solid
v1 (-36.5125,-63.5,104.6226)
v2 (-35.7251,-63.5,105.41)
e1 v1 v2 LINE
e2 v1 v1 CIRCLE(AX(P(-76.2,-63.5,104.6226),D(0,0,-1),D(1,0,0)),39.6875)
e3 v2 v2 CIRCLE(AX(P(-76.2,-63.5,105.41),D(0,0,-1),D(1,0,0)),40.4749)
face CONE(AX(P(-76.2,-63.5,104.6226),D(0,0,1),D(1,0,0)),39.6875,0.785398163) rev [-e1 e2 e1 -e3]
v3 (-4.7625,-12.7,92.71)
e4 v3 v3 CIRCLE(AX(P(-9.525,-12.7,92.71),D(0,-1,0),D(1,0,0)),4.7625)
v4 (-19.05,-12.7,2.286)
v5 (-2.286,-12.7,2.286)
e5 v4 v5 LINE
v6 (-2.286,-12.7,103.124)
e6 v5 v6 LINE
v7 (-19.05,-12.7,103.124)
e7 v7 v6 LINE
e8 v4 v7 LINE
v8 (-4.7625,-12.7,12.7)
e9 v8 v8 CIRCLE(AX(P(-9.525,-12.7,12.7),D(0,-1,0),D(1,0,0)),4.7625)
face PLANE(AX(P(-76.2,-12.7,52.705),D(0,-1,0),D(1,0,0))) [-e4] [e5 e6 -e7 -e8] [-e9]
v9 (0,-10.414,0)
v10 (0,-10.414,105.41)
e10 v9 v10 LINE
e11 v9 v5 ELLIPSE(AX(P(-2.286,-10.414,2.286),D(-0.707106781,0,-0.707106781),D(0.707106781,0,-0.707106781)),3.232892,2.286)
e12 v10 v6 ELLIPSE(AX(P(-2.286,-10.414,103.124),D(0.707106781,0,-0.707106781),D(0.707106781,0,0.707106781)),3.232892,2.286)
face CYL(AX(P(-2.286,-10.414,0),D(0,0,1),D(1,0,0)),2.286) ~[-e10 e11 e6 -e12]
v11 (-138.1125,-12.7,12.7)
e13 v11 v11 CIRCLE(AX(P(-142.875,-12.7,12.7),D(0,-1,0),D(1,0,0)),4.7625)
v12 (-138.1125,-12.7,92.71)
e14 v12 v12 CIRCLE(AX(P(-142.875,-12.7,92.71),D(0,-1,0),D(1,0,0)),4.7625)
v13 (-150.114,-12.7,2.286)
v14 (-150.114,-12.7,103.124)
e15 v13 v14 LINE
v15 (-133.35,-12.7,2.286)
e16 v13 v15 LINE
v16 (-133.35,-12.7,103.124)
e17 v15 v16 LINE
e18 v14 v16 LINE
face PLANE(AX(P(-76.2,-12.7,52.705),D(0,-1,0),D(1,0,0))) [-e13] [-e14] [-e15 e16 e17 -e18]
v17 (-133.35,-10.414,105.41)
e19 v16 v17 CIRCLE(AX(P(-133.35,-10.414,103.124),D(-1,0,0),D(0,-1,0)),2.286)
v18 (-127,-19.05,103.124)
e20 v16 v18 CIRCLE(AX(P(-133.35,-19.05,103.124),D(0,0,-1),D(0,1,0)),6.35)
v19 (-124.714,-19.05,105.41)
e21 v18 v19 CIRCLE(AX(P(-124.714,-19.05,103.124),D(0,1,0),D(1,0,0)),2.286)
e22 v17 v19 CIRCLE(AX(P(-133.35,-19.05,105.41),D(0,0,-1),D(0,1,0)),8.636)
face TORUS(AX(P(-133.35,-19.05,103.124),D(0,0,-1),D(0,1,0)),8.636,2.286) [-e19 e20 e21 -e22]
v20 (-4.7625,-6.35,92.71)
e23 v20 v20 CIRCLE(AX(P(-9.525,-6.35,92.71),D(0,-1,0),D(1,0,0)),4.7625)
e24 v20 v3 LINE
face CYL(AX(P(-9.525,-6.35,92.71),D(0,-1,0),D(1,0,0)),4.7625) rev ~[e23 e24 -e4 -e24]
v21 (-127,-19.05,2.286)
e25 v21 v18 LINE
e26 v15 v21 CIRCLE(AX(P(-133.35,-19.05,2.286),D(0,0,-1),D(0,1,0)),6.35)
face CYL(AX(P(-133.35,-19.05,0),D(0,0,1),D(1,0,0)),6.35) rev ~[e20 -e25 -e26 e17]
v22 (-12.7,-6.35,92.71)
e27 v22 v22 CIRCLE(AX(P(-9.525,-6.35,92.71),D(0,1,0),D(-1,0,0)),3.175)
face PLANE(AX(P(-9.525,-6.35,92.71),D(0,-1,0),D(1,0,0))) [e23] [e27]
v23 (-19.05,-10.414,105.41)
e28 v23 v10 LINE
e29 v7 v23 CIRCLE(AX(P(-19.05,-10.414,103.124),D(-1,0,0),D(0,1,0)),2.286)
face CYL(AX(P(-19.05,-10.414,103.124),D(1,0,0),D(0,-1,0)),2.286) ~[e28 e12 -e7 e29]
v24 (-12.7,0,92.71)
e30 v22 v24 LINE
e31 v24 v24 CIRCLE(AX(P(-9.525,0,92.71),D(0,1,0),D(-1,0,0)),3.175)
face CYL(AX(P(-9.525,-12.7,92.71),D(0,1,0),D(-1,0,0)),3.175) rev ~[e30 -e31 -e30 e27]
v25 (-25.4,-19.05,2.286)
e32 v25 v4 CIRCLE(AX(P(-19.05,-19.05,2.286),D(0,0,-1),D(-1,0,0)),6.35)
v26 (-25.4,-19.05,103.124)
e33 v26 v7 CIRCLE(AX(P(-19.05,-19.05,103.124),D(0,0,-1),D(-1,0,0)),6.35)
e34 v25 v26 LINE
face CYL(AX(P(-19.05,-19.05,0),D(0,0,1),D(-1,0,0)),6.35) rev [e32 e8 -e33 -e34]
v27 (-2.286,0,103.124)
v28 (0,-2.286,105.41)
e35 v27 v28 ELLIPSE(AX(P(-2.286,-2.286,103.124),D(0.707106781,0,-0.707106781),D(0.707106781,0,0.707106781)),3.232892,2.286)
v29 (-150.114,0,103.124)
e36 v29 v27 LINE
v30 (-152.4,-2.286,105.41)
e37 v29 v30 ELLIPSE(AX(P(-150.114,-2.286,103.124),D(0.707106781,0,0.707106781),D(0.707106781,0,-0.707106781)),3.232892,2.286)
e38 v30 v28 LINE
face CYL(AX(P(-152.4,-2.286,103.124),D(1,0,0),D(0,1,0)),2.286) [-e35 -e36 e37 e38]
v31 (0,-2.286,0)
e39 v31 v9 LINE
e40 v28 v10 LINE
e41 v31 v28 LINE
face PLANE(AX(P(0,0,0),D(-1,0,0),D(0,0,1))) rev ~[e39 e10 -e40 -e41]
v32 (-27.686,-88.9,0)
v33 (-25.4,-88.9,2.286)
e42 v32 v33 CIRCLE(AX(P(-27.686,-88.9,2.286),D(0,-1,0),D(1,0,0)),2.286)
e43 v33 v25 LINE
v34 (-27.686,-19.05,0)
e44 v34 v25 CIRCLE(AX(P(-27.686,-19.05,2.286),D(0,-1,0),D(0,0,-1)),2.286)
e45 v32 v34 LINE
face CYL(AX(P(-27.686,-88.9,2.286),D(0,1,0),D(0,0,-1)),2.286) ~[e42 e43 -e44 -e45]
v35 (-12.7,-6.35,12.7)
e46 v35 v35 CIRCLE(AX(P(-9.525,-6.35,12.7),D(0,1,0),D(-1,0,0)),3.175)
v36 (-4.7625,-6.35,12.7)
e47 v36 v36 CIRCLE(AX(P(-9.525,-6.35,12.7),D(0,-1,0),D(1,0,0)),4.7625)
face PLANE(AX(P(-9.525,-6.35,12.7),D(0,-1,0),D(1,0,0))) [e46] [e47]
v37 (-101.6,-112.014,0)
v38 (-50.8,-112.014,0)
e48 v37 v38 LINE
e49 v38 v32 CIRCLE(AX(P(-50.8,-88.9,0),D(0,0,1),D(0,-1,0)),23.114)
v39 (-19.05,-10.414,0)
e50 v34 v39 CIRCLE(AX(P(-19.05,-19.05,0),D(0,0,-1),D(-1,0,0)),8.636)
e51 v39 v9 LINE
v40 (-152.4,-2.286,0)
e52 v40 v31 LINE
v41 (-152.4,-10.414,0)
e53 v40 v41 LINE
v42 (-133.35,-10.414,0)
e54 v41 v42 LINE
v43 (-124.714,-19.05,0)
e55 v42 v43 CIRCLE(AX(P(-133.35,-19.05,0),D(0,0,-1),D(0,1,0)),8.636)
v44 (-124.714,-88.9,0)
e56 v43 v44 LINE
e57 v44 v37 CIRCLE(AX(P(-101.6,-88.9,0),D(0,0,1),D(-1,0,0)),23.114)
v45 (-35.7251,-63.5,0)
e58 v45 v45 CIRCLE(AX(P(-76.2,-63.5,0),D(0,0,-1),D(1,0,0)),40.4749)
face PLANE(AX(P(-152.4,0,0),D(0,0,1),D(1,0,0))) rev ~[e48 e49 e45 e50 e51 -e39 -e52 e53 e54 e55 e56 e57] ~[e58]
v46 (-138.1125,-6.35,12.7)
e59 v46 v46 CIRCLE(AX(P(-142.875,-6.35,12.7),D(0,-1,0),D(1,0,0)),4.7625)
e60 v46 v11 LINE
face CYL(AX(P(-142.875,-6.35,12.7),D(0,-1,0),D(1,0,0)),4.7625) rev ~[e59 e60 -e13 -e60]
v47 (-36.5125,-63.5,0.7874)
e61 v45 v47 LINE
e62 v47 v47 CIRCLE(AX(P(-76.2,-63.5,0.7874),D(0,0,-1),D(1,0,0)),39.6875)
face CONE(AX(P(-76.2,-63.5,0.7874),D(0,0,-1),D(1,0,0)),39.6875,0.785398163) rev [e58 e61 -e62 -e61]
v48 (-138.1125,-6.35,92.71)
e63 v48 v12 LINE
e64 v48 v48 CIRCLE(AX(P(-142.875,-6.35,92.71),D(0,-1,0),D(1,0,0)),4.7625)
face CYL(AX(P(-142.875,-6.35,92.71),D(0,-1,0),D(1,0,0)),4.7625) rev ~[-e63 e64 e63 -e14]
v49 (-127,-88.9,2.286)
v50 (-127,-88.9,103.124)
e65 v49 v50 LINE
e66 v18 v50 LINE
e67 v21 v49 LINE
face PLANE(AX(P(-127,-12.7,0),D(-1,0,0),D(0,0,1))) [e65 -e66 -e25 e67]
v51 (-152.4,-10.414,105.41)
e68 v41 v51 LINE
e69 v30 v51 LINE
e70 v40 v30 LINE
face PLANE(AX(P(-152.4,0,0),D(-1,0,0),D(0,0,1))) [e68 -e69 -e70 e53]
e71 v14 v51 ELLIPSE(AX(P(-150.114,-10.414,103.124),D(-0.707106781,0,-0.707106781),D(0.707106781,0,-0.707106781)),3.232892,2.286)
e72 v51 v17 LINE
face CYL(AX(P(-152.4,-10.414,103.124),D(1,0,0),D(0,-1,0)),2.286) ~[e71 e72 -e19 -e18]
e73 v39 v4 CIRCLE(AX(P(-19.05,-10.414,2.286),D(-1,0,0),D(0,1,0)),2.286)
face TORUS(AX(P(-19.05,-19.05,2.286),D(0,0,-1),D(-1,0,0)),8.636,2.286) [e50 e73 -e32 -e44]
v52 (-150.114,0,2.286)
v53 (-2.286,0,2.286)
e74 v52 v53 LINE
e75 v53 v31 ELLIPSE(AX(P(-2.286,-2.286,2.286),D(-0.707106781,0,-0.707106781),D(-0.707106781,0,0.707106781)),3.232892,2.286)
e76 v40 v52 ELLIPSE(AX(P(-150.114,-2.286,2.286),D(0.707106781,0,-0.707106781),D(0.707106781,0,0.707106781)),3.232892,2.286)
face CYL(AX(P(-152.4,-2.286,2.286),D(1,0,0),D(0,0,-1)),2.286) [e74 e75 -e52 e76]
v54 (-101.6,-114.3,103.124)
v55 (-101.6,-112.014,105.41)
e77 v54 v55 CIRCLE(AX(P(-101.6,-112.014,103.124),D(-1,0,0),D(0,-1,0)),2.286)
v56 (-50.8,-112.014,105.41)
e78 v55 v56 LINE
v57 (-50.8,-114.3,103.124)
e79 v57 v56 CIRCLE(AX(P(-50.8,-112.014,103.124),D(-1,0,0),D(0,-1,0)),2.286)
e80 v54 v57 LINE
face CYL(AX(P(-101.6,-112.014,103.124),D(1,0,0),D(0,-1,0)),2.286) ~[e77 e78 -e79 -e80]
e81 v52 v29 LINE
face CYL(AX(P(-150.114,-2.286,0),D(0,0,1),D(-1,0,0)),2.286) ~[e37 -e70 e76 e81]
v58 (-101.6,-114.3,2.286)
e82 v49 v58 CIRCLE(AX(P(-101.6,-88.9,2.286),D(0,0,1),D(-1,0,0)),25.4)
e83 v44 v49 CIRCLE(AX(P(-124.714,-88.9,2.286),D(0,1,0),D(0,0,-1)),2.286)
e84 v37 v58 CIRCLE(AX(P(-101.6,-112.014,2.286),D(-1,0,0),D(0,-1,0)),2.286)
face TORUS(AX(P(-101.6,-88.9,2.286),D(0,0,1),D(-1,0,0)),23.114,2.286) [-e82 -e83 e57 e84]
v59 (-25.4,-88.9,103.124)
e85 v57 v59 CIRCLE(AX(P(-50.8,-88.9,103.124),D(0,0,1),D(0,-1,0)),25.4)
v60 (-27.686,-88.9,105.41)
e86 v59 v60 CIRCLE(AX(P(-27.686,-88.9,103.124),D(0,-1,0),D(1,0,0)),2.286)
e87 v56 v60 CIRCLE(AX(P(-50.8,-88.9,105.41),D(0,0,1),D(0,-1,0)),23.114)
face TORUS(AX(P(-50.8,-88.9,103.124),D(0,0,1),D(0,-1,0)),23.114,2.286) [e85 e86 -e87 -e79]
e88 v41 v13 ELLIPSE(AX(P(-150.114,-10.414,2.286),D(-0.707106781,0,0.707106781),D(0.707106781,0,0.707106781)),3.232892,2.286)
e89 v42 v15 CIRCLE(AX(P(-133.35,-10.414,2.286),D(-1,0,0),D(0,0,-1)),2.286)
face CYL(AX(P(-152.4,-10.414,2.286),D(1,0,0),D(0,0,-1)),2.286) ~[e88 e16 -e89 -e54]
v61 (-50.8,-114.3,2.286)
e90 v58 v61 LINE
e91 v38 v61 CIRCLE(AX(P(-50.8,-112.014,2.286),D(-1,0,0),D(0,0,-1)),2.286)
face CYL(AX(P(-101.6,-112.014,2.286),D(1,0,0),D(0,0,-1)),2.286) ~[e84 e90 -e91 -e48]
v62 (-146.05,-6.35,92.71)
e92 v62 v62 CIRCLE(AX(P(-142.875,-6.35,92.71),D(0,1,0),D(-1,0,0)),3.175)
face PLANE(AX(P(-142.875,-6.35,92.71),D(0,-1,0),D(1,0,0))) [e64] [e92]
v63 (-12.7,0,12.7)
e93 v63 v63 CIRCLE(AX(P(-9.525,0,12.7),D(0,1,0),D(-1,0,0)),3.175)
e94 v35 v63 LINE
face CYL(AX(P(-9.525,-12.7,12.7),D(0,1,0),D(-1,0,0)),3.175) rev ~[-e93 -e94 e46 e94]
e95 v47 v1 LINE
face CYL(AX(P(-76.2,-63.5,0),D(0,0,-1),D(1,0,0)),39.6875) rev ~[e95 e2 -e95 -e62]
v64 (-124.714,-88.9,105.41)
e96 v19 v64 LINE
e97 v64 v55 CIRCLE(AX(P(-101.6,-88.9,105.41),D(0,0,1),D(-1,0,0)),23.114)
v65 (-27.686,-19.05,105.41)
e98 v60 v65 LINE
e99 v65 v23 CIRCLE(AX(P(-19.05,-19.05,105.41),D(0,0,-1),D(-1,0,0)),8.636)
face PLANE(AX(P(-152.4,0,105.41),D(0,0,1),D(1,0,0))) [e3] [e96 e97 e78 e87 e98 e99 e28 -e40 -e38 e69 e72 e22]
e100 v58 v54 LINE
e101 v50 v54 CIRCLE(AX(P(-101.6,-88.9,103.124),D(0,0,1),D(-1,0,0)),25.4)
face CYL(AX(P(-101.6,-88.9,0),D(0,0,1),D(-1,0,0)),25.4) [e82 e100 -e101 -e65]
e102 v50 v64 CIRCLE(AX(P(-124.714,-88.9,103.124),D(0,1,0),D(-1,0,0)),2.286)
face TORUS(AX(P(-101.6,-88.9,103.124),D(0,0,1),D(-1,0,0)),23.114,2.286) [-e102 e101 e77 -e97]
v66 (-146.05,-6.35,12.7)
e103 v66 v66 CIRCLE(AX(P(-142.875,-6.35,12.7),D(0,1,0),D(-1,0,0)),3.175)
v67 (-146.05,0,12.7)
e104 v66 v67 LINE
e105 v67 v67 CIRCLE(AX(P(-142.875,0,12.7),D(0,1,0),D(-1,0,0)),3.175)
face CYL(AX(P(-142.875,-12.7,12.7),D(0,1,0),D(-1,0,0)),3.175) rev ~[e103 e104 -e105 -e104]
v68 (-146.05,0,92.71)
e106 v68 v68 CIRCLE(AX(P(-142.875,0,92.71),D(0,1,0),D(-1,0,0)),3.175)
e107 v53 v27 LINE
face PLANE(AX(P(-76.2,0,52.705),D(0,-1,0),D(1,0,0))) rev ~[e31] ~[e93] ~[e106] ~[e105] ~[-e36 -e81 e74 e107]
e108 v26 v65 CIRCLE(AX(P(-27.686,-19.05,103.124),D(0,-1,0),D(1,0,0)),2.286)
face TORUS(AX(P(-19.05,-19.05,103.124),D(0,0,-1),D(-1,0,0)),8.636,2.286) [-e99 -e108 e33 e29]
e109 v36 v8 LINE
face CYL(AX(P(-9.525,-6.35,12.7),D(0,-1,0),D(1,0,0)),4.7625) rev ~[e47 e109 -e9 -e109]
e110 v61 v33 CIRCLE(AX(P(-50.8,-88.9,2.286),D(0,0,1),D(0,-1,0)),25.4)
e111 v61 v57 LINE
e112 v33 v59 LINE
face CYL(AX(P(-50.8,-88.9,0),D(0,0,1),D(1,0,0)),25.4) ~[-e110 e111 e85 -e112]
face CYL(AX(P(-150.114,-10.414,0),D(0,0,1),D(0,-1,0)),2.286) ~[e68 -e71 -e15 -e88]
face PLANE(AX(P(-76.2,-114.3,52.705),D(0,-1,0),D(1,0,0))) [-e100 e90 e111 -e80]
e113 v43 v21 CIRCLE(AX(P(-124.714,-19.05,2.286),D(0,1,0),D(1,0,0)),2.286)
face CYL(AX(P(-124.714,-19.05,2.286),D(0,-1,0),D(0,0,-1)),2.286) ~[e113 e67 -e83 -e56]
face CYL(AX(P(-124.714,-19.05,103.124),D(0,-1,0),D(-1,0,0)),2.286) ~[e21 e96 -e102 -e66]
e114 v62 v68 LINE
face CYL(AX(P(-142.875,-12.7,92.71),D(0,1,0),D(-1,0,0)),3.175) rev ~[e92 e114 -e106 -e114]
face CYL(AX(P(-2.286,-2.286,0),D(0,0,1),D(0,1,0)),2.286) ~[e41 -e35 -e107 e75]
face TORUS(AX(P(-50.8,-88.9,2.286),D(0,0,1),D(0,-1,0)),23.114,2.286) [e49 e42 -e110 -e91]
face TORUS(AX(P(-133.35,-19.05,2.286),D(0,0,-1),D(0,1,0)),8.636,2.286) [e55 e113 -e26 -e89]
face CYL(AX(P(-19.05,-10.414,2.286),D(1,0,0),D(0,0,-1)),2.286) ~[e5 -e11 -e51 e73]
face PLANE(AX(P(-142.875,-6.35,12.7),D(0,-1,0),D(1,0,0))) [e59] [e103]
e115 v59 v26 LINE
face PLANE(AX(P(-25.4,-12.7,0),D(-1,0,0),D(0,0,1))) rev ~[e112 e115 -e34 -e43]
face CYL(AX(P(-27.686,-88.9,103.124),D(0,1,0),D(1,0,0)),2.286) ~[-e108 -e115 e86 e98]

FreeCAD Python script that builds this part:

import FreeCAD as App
import Part
import Sketcher

V = App.Vector
Q = App.Units.Quantity


def edges_at(feature, points):
    """Names of the edges that pass closest to the given points."""
    edges = feature.Shape.Edges
    near = lambda p: min(range(len(edges)), key=lambda i: edges[i].distToShape(Part.Vertex(*p))[0])
    return sorted({f"Edge{near(p) + 1}" for p in points})


def add_polygon(sketch, points):
    """Adds a closed chain of lines whose ends are joined by coincident constraints."""
    first, n = sketch.GeometryCount, len(points)
    for a, b in zip(points, points[1:] + points[:1]):
        sketch.addGeometry(Part.LineSegment(App.Vector(*a, 0), App.Vector(*b, 0)), False)
    for i in range(n):
        sketch.addConstraint(Sketcher.Constraint("Coincident", first + i, 2, first + (i + 1) % n, 1))

doc = App.newDocument("Part")
body = doc.addObject("PartDesign::Body", "Body")

# Sketch on XZ plane
sketch1 = body.newObject("Sketcher::SketchObject", "Sketch")
sketch1.AttachmentSupport = (doc.getObject("XZ_Plane"), [""])
sketch1.MapMode = "FlatFace"
add_polygon(sketch1, [(-152, 105), (-152, 0), (0, 0), (0, 105)])  # lines 0-3
sketch1.addConstraint(Sketcher.Constraint("Vertical", 0))
sketch1.addConstraint(Sketcher.Constraint("Horizontal", 1))
sketch1.addConstraint(Sketcher.Constraint("Vertical", 2))
sketch1.addConstraint(Sketcher.Constraint("Horizontal", 3))
sketch1.addConstraint(Sketcher.Constraint("Coincident", 1, 2, -1, 1))
sketch1.addConstraint(Sketcher.Constraint("DistanceX", 1, 1, 1, 2, Q("6 in")))
sketch1.addConstraint(Sketcher.Constraint("DistanceY", 0, 2, 0, 1, Q("4.15 in")))
pad1 = body.newObject("PartDesign::Pad", "Pad")
pad1.Profile = sketch1
pad1.Length = Q("0.5 in")

# Sketch on XZ plane
sketch2 = body.newObject("Sketcher::SketchObject", "Sketch001")
sketch2.AttachmentSupport = (doc.getObject("XZ_Plane"), [""])
sketch2.MapMode = "FlatFace"
sketch2.AttachmentOffset = App.Placement(V(0, 0, 0.5 * 25.4), App.Rotation())
sketch2.addGeometry(Part.Circle(V(-9.5, 92.7, 0), V(0, 0, 1), 3.2), False)
sketch2.addGeometry(Part.Circle(V(-142.9, 92.7, 0), V(0, 0, 1), 3.2), False)
sketch2.addGeometry(Part.Circle(V(-9.5, 12.7, 0), V(0, 0, 1), 3.2), False)
sketch2.addGeometry(Part.Circle(V(-142.9, 12.7, 0), V(0, 0, 1), 3.2), False)
sketch2.addConstraint(Sketcher.Constraint("Equal", 0, 1))
sketch2.addConstraint(Sketcher.Constraint("Equal", 1, 2))
sketch2.addConstraint(Sketcher.Constraint("Equal", 2, 3))
sketch2.addConstraint(Sketcher.Constraint("Horizontal", 0, 3, 1, 3))
sketch2.addConstraint(Sketcher.Constraint("Horizontal", 2, 3, 3, 3))
sketch2.addConstraint(Sketcher.Constraint("Vertical", 0, 3, 2, 3))
sketch2.addConstraint(Sketcher.Constraint("Vertical", 1, 3, 3, 3))
sketch2.addConstraint(Sketcher.Constraint("Diameter", 0, Q("0.25 in")))
sketch2.addConstraint(Sketcher.Constraint("DistanceY", -1, 1, 2, 3, Q("0.5 in")))
sketch2.addConstraint(Sketcher.Constraint("DistanceY", -1, 1, 0, 3, Q("3.65 in")))
sketch2.addConstraint(Sketcher.Constraint("DistanceX", 1, 3, 0, 3, Q("5.25 in")))
sketch2.addConstraint(Sketcher.Constraint("DistanceX", 0, 3, -1, 1, Q("0.375 in")))
doc.recompute()
hole = body.newObject("PartDesign::Hole", "Hole")
hole.Profile = sketch2
hole.ThreadType = "None"
hole.Diameter = Q("0.25 in")
hole.DepthType = "ThroughAll"
hole.HoleCutType = "Counterbore"
hole.HoleCutDiameter = Q("0.375 in")
hole.HoleCutDepth = Q("0.25 in")

# Sketch on XZ plane
sketch3 = body.newObject("Sketcher::SketchObject", "Sketch002")
sketch3.AttachmentSupport = (doc.getObject("XZ_Plane"), [""])
sketch3.MapMode = "FlatFace"
sketch3.AttachmentOffset = App.Placement(V(0, 0, 0.5 * 25.4), App.Rotation())
add_polygon(sketch3, [(-127, 105), (-127, 0), (-25, 0), (-25, 105)])  # lines 0-3
sketch3.addConstraint(Sketcher.Constraint("Vertical", 0))
sketch3.addConstraint(Sketcher.Constraint("Horizontal", 1))
sketch3.addConstraint(Sketcher.Constraint("Vertical", 2))
sketch3.addConstraint(Sketcher.Constraint("Horizontal", 3))
sketch3.addConstraint(Sketcher.Constraint("PointOnObject", 0, 2, -1))
sketch3.addConstraint(Sketcher.Constraint("DistanceX", 1, 1, 1, 2, Q("4 in")))
sketch3.addConstraint(Sketcher.Constraint("DistanceX", 0, 2, -1, 1, Q("5 in")))
sketch3.addConstraint(Sketcher.Constraint("DistanceY", 0, 2, 0, 1, Q("4.15 in")))
pad2 = body.newObject("PartDesign::Pad", "Pad001")
pad2.Profile = sketch3
pad2.Length = Q("4 in")
doc.recompute()

fillet = body.newObject("PartDesign::Fillet", "Fillet")
fillet.Base = (pad2, edges_at(pad2, [(-25.4, -114.3, 52.705), (-127, -114.3, 52.705)]))
fillet.Radius = Q("1 in")
doc.recompute()

fillet2 = body.newObject("PartDesign::Fillet", "Fillet001")
fillet2.Base = (fillet, edges_at(fillet, [(-25.4, -12.7, 52.705), (-127, -12.7, 52.705)]))
fillet2.Radius = Q("0.25 in")

# Sketch on XY plane
sketch4 = body.newObject("Sketcher::SketchObject", "Sketch003")
sketch4.AttachmentSupport = (doc.getObject("XY_Plane"), [""])
sketch4.MapMode = "FlatFace"
sketch4.addGeometry(Part.Circle(V(-76, -64, 0), V(0, 0, 1), 40), False)
sketch4.addConstraint(Sketcher.Constraint("Diameter", 0, Q("3.125 in")))
sketch4.addConstraint(Sketcher.Constraint("DistanceX", 0, 3, -1, 1, Q("3 in")))
sketch4.addConstraint(Sketcher.Constraint("DistanceY", 0, 3, -1, 1, Q("2.5 in")))
pocket1 = body.newObject("PartDesign::Pocket", "Pocket")
pocket1.Profile = sketch4
pocket1.Type = "ThroughAll"
pocket1.Reversed = True
doc.recompute()

fillet3 = body.newObject("PartDesign::Fillet", "Fillet002")
fillet3.Base = (pocket1, edges_at(pocket1, [
    (-142.875, -12.7, 0),
    (-9.525, -12.7, 0),
    (0, -12.7, 52.705),
    (-142.875, -12.7, 105.41),
    (-9.525, -12.7, 105.41),
    (-76.2, 0, 105.41),
    (0, 0, 52.705),
    (-152.4, -12.7, 52.705),
    (-152.4, 0, 52.705),
    (-76.2, 0, 0),
]))
fillet3.Radius = Q("0.09 in")
doc.recompute()

chamfer = body.newObject("PartDesign::Chamfer", "Chamfer")
chamfer.Base = (fillet3, edges_at(fillet3, [(-115.888, -63.5, 105.41), (-115.888, -63.5, 0)]))
chamfer.Size = Q("0.031 in")

doc.recompute()
